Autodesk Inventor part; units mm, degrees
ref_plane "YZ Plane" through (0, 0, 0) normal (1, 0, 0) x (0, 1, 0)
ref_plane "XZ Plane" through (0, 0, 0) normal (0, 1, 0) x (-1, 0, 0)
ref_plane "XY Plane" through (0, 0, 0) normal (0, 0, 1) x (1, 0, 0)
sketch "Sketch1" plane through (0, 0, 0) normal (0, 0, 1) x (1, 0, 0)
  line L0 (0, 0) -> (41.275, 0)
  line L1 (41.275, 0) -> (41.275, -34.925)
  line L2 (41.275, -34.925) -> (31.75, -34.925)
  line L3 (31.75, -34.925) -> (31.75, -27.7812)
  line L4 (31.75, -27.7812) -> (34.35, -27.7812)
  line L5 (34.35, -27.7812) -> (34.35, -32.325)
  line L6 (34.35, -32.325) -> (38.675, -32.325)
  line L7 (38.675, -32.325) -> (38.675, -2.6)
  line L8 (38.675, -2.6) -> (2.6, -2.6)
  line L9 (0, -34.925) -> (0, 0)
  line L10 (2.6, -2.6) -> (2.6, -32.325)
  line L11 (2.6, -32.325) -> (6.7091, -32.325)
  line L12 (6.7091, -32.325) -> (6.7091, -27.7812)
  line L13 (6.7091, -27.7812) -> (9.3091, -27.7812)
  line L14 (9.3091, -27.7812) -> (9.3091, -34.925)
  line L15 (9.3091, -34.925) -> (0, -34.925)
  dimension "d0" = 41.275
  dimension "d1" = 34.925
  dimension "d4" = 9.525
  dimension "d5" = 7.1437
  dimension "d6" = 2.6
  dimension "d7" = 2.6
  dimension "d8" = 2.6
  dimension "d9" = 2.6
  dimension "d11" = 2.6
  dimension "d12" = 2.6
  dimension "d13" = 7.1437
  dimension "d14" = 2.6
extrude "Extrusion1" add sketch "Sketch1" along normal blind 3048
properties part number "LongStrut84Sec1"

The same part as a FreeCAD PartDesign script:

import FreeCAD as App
import Part
import Sketcher
from FreeCAD import Vector
Q = App.Units.Quantity

doc = App.newDocument("Part")
body = doc.addObject("PartDesign::Body", "Body")

# Sketch on XY plane
sketch1 = body.newObject("Sketcher::SketchObject", "Sketch")
sketch1.AttachmentSupport = (doc.getObject("XY_Plane"), [""])
sketch1.MapMode = "FlatFace"
sketch1.addGeometry([
    Part.LineSegment(Vector(41.3, 0, 0), Vector(0, 0, 0)),  # 0
    Part.LineSegment(Vector(0, 0, 0), Vector(0, -34.9, 0)),  # 1
    Part.LineSegment(Vector(0, -34.9, 0), Vector(9.3, -34.9, 0)),  # 2
    Part.LineSegment(Vector(9.3, -34.9, 0), Vector(9.3, -27.8, 0)),  # 3
    Part.LineSegment(Vector(9.3, -27.8, 0), Vector(6.7, -27.8, 0)),  # 4
    Part.LineSegment(Vector(6.7, -27.8, 0), Vector(6.7, -32.3, 0)),  # 5
    Part.LineSegment(Vector(6.7, -32.3, 0), Vector(2.6, -32.3, 0)),  # 6
    Part.LineSegment(Vector(2.6, -32.3, 0), Vector(2.6, -2.6, 0)),  # 7
    Part.LineSegment(Vector(2.6, -2.6, 0), Vector(38.7, -2.6, 0)),  # 8
    Part.LineSegment(Vector(38.7, -2.6, 0), Vector(38.7, -32.3, 0)),  # 9
    Part.LineSegment(Vector(38.7, -32.3, 0), Vector(34.4, -32.3, 0)),  # 10
    Part.LineSegment(Vector(34.4, -32.3, 0), Vector(34.4, -27.8, 0)),  # 11
    Part.LineSegment(Vector(34.4, -27.8, 0), Vector(31.8, -27.8, 0)),  # 12
    Part.LineSegment(Vector(31.8, -27.8, 0), Vector(31.8, -34.9, 0)),  # 13
    Part.LineSegment(Vector(31.8, -34.9, 0), Vector(41.3, -34.9, 0)),  # 14
    Part.LineSegment(Vector(41.3, -34.9, 0), Vector(41.3, 0, 0)),  # 15
], False)
sketch1.addConstraint([
    Sketcher.Constraint("Coincident", 0, 2, 1, 1),
    Sketcher.Constraint("Coincident", 1, 2, 2, 1),
    Sketcher.Constraint("Coincident", 2, 2, 3, 1),
    Sketcher.Constraint("Coincident", 3, 2, 4, 1),
    Sketcher.Constraint("Coincident", 4, 2, 5, 1),
    Sketcher.Constraint("Coincident", 5, 2, 6, 1),
    Sketcher.Constraint("Coincident", 6, 2, 7, 1),
    Sketcher.Constraint("Coincident", 7, 2, 8, 1),
    Sketcher.Constraint("Coincident", 8, 2, 9, 1),
    Sketcher.Constraint("Coincident", 9, 2, 10, 1),
    Sketcher.Constraint("Coincident", 10, 2, 11, 1),
    Sketcher.Constraint("Coincident", 11, 2, 12, 1),
    Sketcher.Constraint("Coincident", 12, 2, 13, 1),
    Sketcher.Constraint("Coincident", 13, 2, 14, 1),
    Sketcher.Constraint("Coincident", 14, 2, 15, 1),
    Sketcher.Constraint("Coincident", 15, 2, 0, 1),
    Sketcher.Constraint("Horizontal", 0),
    Sketcher.Constraint("Vertical", 1),
    Sketcher.Constraint("Horizontal", 2),
    Sketcher.Constraint("Vertical", 3),
    Sketcher.Constraint("Horizontal", 4),
    Sketcher.Constraint("Vertical", 5),
    Sketcher.Constraint("Horizontal", 6),
    Sketcher.Constraint("Vertical", 7),
    Sketcher.Constraint("Horizontal", 8),
    Sketcher.Constraint("Vertical", 9),
    Sketcher.Constraint("Horizontal", 10),
    Sketcher.Constraint("Vertical", 11),
    Sketcher.Constraint("Horizontal", 12),
    Sketcher.Constraint("Vertical", 13),
    Sketcher.Constraint("Horizontal", 14),
    Sketcher.Constraint("Vertical", 15),
    Sketcher.Constraint("Coincident", 0, 2, -1, 1),
    Sketcher.Constraint("Horizontal", 6, 2, 9, 2),
    Sketcher.Constraint("Horizontal", 4, 2, 11, 2),
    Sketcher.Constraint("Horizontal", 2, 2, 13, 2),
    Sketcher.Constraint("Equal", 4, 12),
    Sketcher.Constraint("DistanceX", 0, 2, 0, 1, Q("1.625 in")),
    Sketcher.Constraint("DistanceX", 14, 1, 14, 2, Q("0.375 in")),
    Sketcher.Constraint("DistanceY", 1, 2, 1, 1, Q("1.375 in")),
    Sketcher.Constraint("DistanceY", 3, 1, 3, 2, Q("0.281252 in")),
    Sketcher.Constraint("DistanceX", 4, 2, 4, 1, 2.6),
    Sketcher.Constraint("DistanceX", -1, 1, 6, 2, 2.6),
    Sketcher.Constraint("DistanceY", 7, 2, -1, 1, 2.6),
    Sketcher.Constraint("DistanceY", 2, 2, 5, 2, 2.6),
    Sketcher.Constraint("DistanceX", 9, 2, 14, 2, 2.6),
    Sketcher.Constraint("DistanceX", 2, 1, 2, 2, Q("0.3665 in")),
])
pad1 = body.newObject("PartDesign::Pad", "Pad")
pad1.Profile = sketch1
pad1.Length = Q("120 in")

doc.recompute()
